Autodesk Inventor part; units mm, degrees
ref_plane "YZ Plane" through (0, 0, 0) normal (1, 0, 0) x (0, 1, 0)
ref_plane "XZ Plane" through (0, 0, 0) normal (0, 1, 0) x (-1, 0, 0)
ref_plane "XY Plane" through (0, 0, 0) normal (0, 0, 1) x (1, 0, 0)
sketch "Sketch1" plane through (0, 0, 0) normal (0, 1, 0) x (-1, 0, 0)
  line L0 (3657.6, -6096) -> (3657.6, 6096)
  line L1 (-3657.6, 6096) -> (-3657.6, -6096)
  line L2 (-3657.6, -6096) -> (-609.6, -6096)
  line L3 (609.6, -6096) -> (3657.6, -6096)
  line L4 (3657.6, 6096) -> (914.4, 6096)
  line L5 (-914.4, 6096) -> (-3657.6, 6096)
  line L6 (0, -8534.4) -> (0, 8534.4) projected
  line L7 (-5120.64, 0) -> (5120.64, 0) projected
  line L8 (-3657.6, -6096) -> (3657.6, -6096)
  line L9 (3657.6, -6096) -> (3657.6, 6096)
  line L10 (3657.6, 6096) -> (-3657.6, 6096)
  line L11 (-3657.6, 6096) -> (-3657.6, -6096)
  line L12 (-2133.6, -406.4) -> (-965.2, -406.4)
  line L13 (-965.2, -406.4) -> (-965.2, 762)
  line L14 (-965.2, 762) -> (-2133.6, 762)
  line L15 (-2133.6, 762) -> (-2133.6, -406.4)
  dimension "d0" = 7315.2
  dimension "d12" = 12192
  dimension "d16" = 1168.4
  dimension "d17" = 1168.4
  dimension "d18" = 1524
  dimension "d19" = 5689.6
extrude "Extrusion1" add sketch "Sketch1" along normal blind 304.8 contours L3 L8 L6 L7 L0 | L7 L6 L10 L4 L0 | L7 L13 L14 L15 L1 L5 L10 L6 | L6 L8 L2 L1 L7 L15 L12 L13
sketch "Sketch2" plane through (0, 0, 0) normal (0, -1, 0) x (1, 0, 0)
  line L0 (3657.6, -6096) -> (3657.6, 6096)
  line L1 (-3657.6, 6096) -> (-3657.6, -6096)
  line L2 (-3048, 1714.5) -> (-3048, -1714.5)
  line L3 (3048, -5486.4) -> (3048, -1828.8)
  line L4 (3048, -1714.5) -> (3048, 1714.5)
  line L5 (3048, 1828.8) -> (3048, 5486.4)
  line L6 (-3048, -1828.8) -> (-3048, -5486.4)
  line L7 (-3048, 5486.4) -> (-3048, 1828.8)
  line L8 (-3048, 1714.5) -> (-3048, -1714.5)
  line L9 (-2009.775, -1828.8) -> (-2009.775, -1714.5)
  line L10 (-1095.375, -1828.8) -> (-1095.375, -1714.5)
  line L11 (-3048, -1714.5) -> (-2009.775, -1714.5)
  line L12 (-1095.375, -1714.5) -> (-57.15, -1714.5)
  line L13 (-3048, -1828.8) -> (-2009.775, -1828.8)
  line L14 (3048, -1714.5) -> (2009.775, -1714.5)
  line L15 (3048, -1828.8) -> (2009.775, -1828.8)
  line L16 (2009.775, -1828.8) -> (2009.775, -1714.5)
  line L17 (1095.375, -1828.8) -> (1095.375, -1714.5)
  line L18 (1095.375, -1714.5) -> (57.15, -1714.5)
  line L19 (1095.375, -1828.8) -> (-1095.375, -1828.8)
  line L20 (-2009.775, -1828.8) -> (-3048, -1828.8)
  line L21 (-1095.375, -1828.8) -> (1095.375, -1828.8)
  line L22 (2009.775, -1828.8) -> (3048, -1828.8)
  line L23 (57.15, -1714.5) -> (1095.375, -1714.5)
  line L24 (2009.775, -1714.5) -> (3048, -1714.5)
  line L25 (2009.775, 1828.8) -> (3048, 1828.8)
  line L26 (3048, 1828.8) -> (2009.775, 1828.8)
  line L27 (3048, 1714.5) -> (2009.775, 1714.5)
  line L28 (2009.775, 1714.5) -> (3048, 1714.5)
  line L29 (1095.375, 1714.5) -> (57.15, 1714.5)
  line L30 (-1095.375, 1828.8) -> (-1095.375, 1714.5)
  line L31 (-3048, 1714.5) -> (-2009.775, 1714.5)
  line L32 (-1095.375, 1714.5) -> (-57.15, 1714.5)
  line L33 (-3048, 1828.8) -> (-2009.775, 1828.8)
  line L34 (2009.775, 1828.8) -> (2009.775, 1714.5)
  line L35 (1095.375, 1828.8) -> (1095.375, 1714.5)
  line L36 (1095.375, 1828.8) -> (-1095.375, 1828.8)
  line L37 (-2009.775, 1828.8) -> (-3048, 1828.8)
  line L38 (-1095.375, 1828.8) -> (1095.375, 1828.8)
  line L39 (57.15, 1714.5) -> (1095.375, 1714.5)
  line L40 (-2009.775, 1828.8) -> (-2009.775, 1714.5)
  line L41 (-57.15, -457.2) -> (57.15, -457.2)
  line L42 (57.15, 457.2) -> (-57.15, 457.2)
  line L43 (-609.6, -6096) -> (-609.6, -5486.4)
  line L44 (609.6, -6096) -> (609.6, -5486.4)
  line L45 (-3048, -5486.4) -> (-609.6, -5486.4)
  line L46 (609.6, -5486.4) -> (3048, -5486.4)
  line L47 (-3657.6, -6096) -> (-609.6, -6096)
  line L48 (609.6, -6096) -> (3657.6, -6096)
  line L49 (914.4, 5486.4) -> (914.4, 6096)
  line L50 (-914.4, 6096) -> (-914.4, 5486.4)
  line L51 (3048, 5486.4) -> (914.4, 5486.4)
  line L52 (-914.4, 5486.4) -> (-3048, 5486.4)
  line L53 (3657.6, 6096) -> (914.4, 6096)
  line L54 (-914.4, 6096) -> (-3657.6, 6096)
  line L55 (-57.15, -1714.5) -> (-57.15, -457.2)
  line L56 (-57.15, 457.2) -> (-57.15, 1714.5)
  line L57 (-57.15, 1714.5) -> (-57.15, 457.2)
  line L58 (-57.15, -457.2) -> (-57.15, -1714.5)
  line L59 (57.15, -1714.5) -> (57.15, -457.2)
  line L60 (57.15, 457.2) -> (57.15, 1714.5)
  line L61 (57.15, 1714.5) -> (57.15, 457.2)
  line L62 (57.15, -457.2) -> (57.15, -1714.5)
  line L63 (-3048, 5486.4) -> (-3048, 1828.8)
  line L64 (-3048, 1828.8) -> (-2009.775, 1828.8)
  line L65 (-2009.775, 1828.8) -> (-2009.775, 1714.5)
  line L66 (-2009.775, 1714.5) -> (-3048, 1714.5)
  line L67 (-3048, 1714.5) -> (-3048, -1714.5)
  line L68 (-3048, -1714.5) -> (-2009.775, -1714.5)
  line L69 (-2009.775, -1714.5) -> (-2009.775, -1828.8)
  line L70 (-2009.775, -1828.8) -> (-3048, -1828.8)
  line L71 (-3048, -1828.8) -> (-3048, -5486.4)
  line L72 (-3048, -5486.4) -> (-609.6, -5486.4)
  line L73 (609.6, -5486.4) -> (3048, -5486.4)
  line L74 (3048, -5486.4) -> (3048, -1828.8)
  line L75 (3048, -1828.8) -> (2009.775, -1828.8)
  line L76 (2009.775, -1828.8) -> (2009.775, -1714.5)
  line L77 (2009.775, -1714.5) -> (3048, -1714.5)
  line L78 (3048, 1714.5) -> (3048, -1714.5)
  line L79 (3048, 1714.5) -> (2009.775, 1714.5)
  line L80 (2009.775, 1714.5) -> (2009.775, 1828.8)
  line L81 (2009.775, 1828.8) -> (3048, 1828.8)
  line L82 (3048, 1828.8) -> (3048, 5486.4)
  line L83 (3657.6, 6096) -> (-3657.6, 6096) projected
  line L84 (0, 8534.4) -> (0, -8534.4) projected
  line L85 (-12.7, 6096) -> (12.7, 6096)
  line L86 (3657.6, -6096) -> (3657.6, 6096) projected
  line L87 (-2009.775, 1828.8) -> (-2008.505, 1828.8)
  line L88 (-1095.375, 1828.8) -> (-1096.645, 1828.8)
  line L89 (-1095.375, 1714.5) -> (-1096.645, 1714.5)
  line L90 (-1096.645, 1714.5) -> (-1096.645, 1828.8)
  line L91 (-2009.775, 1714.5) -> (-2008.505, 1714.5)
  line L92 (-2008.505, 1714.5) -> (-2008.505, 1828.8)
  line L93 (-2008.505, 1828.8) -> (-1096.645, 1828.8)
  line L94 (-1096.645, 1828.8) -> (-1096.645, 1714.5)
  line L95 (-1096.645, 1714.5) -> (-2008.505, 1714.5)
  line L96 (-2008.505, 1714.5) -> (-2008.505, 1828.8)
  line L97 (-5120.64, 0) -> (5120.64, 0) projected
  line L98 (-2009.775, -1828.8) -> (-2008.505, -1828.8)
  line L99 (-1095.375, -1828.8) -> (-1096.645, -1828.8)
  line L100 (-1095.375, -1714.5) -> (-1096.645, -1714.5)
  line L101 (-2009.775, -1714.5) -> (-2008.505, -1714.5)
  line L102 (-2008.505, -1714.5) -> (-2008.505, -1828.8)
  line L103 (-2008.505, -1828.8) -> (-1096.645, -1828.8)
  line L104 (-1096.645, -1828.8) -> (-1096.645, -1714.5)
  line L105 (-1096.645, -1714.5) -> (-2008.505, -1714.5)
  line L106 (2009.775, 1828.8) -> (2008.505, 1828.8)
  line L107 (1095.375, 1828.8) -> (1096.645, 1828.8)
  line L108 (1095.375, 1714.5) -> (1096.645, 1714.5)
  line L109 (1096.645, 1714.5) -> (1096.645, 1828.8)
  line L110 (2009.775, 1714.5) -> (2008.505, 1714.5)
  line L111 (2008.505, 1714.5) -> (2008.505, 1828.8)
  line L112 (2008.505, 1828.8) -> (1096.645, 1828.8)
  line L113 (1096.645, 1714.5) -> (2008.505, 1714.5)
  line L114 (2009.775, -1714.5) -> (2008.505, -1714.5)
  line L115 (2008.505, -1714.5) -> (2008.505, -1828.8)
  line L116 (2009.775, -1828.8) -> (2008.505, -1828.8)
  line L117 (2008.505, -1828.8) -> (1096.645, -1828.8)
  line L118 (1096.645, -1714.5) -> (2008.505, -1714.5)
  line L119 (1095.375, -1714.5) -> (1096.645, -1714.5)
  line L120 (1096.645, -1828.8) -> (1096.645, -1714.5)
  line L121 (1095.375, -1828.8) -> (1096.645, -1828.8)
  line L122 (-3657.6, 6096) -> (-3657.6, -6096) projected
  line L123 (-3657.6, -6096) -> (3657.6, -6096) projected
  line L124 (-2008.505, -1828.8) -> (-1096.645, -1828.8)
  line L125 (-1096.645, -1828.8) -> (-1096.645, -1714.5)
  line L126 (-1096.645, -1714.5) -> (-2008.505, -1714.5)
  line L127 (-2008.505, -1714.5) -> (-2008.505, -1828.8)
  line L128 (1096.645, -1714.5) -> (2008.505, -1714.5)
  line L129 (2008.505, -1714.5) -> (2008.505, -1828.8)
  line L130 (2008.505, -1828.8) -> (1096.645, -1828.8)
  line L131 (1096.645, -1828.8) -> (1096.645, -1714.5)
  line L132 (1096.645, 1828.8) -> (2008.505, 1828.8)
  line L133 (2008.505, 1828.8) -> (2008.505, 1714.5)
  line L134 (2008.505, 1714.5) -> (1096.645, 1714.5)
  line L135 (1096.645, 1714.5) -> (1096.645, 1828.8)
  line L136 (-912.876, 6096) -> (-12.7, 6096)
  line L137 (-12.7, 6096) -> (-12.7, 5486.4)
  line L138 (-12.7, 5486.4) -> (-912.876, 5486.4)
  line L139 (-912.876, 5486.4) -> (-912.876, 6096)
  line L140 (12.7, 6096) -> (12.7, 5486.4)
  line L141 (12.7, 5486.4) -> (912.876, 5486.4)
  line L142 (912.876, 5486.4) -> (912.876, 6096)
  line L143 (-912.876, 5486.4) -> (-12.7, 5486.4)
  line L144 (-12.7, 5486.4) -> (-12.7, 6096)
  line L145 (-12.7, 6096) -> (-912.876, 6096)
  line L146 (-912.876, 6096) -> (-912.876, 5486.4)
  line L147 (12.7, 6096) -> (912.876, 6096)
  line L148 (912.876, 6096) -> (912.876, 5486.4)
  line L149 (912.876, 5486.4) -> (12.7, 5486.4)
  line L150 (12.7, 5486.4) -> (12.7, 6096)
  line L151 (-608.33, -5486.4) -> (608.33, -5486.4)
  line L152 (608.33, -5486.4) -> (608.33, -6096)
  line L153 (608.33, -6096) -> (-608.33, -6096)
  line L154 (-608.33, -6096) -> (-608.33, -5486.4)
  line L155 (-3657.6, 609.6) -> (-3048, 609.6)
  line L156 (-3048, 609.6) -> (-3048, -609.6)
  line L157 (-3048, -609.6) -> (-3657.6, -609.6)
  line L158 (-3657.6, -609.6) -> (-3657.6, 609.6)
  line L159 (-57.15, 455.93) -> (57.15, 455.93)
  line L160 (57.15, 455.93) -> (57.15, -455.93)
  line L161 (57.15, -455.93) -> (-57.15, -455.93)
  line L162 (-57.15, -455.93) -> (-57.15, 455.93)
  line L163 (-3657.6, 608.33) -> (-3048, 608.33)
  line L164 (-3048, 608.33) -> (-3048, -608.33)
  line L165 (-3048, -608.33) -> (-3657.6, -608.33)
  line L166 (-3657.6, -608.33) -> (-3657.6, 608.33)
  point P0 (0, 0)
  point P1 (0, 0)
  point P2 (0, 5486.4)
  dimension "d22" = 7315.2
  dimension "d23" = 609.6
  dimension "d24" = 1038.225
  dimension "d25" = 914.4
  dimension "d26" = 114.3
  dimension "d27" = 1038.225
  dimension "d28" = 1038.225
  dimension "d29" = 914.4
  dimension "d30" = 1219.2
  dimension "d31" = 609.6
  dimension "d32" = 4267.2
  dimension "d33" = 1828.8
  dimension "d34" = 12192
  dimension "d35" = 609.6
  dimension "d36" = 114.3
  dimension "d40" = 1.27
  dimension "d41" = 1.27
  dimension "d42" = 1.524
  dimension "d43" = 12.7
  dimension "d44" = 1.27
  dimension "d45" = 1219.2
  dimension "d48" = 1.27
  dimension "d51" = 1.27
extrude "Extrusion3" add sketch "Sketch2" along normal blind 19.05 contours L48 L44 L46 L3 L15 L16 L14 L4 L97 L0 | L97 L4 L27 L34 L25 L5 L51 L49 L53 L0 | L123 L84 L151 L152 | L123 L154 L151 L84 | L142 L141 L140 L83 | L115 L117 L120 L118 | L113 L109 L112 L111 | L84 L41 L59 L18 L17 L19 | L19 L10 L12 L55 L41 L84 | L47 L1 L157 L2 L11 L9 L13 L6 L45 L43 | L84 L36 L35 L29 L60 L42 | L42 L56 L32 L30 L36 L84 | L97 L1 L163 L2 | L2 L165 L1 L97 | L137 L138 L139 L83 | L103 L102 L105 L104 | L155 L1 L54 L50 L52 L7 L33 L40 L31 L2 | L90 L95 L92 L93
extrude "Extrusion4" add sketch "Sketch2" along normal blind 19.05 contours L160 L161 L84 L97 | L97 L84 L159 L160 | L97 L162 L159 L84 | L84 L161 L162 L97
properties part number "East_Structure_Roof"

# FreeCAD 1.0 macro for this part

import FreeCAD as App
import Part
import Sketcher

V = App.Vector
Q = App.Units.Quantity


def add_polygon(sketch, points):
    """Adds a closed chain of lines whose ends are joined by coincident constraints."""
    first, n = sketch.GeometryCount, len(points)
    for a, b in zip(points, points[1:] + points[:1]):
        sketch.addGeometry(Part.LineSegment(App.Vector(*a, 0), App.Vector(*b, 0)), False)
    for i in range(n):
        sketch.addConstraint(Sketcher.Constraint("Coincident", first + i, 2, first + (i + 1) % n, 1))

doc = App.newDocument("Part")
body = doc.addObject("PartDesign::Body", "Body")

# Sketch on XZ plane
sketch1 = body.newObject("Sketcher::SketchObject", "Sketch")
sketch1.AttachmentSupport = (doc.getObject("XZ_Plane"), [""])
sketch1.MapMode = "FlatFace"
add_polygon(sketch1, [(-3658, -6096), (-3658, 6096), (3658, 6096), (3658, -6096)])  # lines 0-3
add_polygon(sketch1, [(2134, -406), (2134, 762), (965, 762), (965, -406)])  # lines 4-7
sketch1.addConstraint([
    Sketcher.Constraint("Vertical", 0),
    Sketcher.Constraint("Horizontal", 1),
    Sketcher.Constraint("Vertical", 2),
    Sketcher.Constraint("Horizontal", 3),
    Sketcher.Constraint("Vertical", 4),
    Sketcher.Constraint("Horizontal", 5),
    Sketcher.Constraint("Vertical", 6),
    Sketcher.Constraint("Horizontal", 7),
    Sketcher.Constraint("Symmetric", 0, 2, 2, 2, -1, 1),
    Sketcher.Constraint("Equal", 7, 4),
    Sketcher.Constraint("DistanceX", 1, 1, 1, 2, Q("288 in")),
    Sketcher.Constraint("DistanceX", 5, 2, 5, 1, Q("46 in")),
    Sketcher.Constraint("DistanceY", 0, 1, 0, 2, Q("480 in")),
    Sketcher.Constraint("DistanceX", 4, 2, 1, 2, Q("60 in")),
    Sketcher.Constraint("DistanceY", 2, 2, 6, 2, Q("224 in")),
])
pad1 = body.newObject("PartDesign::Pad", "Pad")
pad1.Profile = sketch1
pad1.Length = Q("12 in")
pad1.Reversed = True

# Sketch on XZ plane
sketch2 = body.newObject("Sketcher::SketchObject", "Sketch001")
sketch2.AttachmentSupport = (doc.getObject("XZ_Plane"), [""])
sketch2.MapMode = "FlatFace"
add_polygon(sketch2, [(610, -6096), (3658, -6096), (3658, 6096), (914, 6096), (914, 5486), (3048, 5486), (3048, 1829), (2010, 1829), (2010, 1714), (3048, 1714), (3048, -1714), (2010, -1714), (2010, -1829), (3048, -1829), (3048, -5486), (610, -5486)])  # lines 0-15
add_polygon(sketch2, [(608, -6096), (608, -5486), (-608, -5486), (-608, -6096)])  # lines 16-19
add_polygon(sketch2, [(913, 5486), (913, 6096), (13, 6096), (13, 5486)])  # lines 20-23
add_polygon(sketch2, [(2009, -1829), (2009, -1714), (1097, -1714), (1097, -1829)])  # lines 24-27
add_polygon(sketch2, [(1097, 1714), (2009, 1714), (2009, 1829), (1097, 1829)])  # lines 28-31
add_polygon(sketch2, [(57, -457), (-57, -457), (-57, -1714), (-1095, -1714), (-1095, -1829), (1095, -1829), (1095, -1714), (57, -1714)])  # lines 32-39
add_polygon(sketch2, [(-3658, -6096), (-610, -6096), (-610, -5486), (-3048, -5486), (-3048, -1829), (-2010, -1829), (-2010, -1714), (-3048, -1714), (-3048, -610), (-3658, -610)])  # lines 40-49
add_polygon(sketch2, [(1095, 1829), (-1095, 1829), (-1095, 1714), (-57, 1714), (-57, 457), (57, 457), (57, 1714), (1095, 1714)])  # lines 50-57
add_polygon(sketch2, [(-3658, 608), (-3658, -608), (-3048, -608), (-3048, 608)])  # lines 58-61
add_polygon(sketch2, [(-13, 5486), (-13, 6096), (-913, 6096), (-913, 5486)])  # lines 62-65
add_polygon(sketch2, [(-2009, -1829), (-1097, -1829), (-1097, -1714), (-2009, -1714)])  # lines 66-69
add_polygon(sketch2, [(-3658, 610), (-3048, 610), (-3048, 1714), (-2010, 1714), (-2010, 1829), (-3048, 1829), (-3048, 5486), (-914, 5486), (-914, 6096), (-3658, 6096)])  # lines 70-79
add_polygon(sketch2, [(-1097, 1714), (-1097, 1829), (-2009, 1829), (-2009, 1714)])  # lines 80-83
sketch2.addConstraint([
    Sketcher.Constraint("Horizontal", 0),
    Sketcher.Constraint("Vertical", 1),
    Sketcher.Constraint("Horizontal", 2),
    Sketcher.Constraint("Vertical", 3),
    Sketcher.Constraint("Horizontal", 4),
    Sketcher.Constraint("Vertical", 5),
    Sketcher.Constraint("Horizontal", 6),
    Sketcher.Constraint("Vertical", 7),
    Sketcher.Constraint("Horizontal", 8),
    Sketcher.Constraint("Vertical", 9),
    Sketcher.Constraint("Horizontal", 10),
    Sketcher.Constraint("Vertical", 11),
    Sketcher.Constraint("Horizontal", 12),
    Sketcher.Constraint("Vertical", 13),
    Sketcher.Constraint("Horizontal", 14),
    Sketcher.Constraint("Vertical", 15),
    Sketcher.Constraint("Vertical", 16),
    Sketcher.Constraint("Horizontal", 17),
    Sketcher.Constraint("Vertical", 18),
    Sketcher.Constraint("Horizontal", 19),
    Sketcher.Constraint("Vertical", 20),
    Sketcher.Constraint("Horizontal", 21),
    Sketcher.Constraint("Vertical", 22),
    Sketcher.Constraint("Horizontal", 23),
    Sketcher.Constraint("Vertical", 24),
    Sketcher.Constraint("Horizontal", 25),
    Sketcher.Constraint("Vertical", 26),
    Sketcher.Constraint("Horizontal", 27),
    Sketcher.Constraint("Horizontal", 28),
    Sketcher.Constraint("Vertical", 29),
    Sketcher.Constraint("Horizontal", 30),
    Sketcher.Constraint("Vertical", 31),
    Sketcher.Constraint("Horizontal", 32),
    Sketcher.Constraint("Vertical", 33),
    Sketcher.Constraint("Horizontal", 34),
    Sketcher.Constraint("Vertical", 35),
    Sketcher.Constraint("Horizontal", 36),
    Sketcher.Constraint("Vertical", 37),
    Sketcher.Constraint("Horizontal", 38),
    Sketcher.Constraint("Vertical", 39),
    Sketcher.Constraint("Horizontal", 40),
    Sketcher.Constraint("Vertical", 41),
    Sketcher.Constraint("Horizontal", 42),
    Sketcher.Constraint("Vertical", 43),
    Sketcher.Constraint("Horizontal", 44),
    Sketcher.Constraint("Vertical", 45),
    Sketcher.Constraint("Horizontal", 46),
    Sketcher.Constraint("Vertical", 47),
    Sketcher.Constraint("Horizontal", 48),
    Sketcher.Constraint("Vertical", 49),
    Sketcher.Constraint("Horizontal", 50),
    Sketcher.Constraint("Vertical", 51),
    Sketcher.Constraint("Horizontal", 52),
    Sketcher.Constraint("Vertical", 53),
    Sketcher.Constraint("Horizontal", 54),
    Sketcher.Constraint("Vertical", 55),
    Sketcher.Constraint("Horizontal", 56),
    Sketcher.Constraint("Vertical", 57),
    Sketcher.Constraint("Vertical", 58),
    Sketcher.Constraint("Horizontal", 59),
    Sketcher.Constraint("Vertical", 60),
    Sketcher.Constraint("Horizontal", 61),
    Sketcher.Constraint("Vertical", 62),
    Sketcher.Constraint("Horizontal", 63),
    Sketcher.Constraint("Vertical", 64),
    Sketcher.Constraint("Horizontal", 65),
    Sketcher.Constraint("Horizontal", 66),
    Sketcher.Constraint("Vertical", 67),
    Sketcher.Constraint("Horizontal", 68),
    Sketcher.Constraint("Vertical", 69),
    Sketcher.Constraint("Horizontal", 70),
    Sketcher.Constraint("Vertical", 71),
    Sketcher.Constraint("Horizontal", 72),
    Sketcher.Constraint("Vertical", 73),
    Sketcher.Constraint("Horizontal", 74),
    Sketcher.Constraint("Vertical", 75),
    Sketcher.Constraint("Horizontal", 76),
    Sketcher.Constraint("Vertical", 77),
    Sketcher.Constraint("Horizontal", 78),
    Sketcher.Constraint("Vertical", 79),
    Sketcher.Constraint("Vertical", 80),
    Sketcher.Constraint("Horizontal", 81),
    Sketcher.Constraint("Vertical", 82),
    Sketcher.Constraint("Horizontal", 83),
    Sketcher.Constraint("Symmetric", 4, 2, 42, 2, -1, 1),
    Sketcher.Constraint("Symmetric", 6, 2, 44, 2, -1, 1),
    Sketcher.Constraint("Symmetric", 8, 2, 46, 2, -1, 1),
    Sketcher.Constraint("Symmetric", 1, 2, 49, 2, -1, 1),
    Sketcher.Constraint("Symmetric", 36, 2, 50, 2, -1, 1),
    Sketcher.Constraint("Symmetric", 38, 2, 52, 2, -1, 1),
    Sketcher.Constraint("Symmetric", 32, 2, 54, 2, -1, 1),
    Sketcher.Constraint("Symmetric", 34, 2, 56, 2, -1, 1),
    Sketcher.Constraint("Symmetric", 30, 2, 66, 2, -1, 1),
    Sketcher.Constraint("Symmetric", 28, 2, 68, 2, -1, 1),
    Sketcher.Constraint("Symmetric", 9, 2, 71, 2, -1, 1),
    Sketcher.Constraint("Symmetric", 11, 2, 73, 2, -1, 1),
    Sketcher.Constraint("Symmetric", 13, 2, 75, 2, -1, 1),
    Sketcher.Constraint("Symmetric", 0, 2, 78, 2, -1, 1),
    Sketcher.Constraint("Symmetric", 26, 2, 80, 2, -1, 1),
    Sketcher.Constraint("Symmetric", 24, 2, 82, 2, -1, 1),
    Sketcher.Constraint("Symmetric", 34, 2, 37, 2, -2),
    Sketcher.Constraint("Symmetric", 15, 2, 40, 2, -2),
    Sketcher.Constraint("Symmetric", 13, 2, 42, 2, -2),
    Sketcher.Constraint("Symmetric", 11, 2, 44, 2, -2),
    Sketcher.Constraint("Symmetric", 21, 2, 62, 2, -2),
    Sketcher.Constraint("Symmetric", 23, 2, 64, 2, -2),
    Sketcher.Constraint("Symmetric", 26, 2, 66, 2, -2),
    Sketcher.Constraint("Symmetric", 24, 2, 68, 2, -2),
    Sketcher.Constraint("Horizontal", 14, 2, 16, 2),
    Sketcher.Constraint("Horizontal", 15, 2, 18, 2),
    Sketcher.Constraint("Horizontal", 2, 2, 20, 2),
    Sketcher.Constraint("Horizontal", 4, 2, 22, 2),
    Sketcher.Constraint("Horizontal", 10, 2, 24, 2),
    Sketcher.Constraint("Horizontal", 12, 2, 26, 2),
    Sketcher.Constraint("Horizontal", 8, 2, 28, 2),
    Sketcher.Constraint("Horizontal", 25, 2, 33, 2),
    Sketcher.Constraint("Horizontal", 27, 2, 35, 2),
    Sketcher.Constraint("Vertical", 5, 2, 8, 2),
    Sketcher.Constraint("Vertical", 33, 2, 52, 2),
    Sketcher.Constraint("Vertical", 49, 2, 58, 2),
    Sketcher.Constraint("Vertical", 47, 2, 59, 2),
    Sketcher.Constraint("Equal", 12, 34),
    Sketcher.Constraint("Equal", 4, 76),
    Sketcher.Constraint("Equal", 70, 3),
    Sketcher.Constraint("Equal", 54, 7),
    Sketcher.Constraint("Equal", 19, 58),
    Sketcher.Constraint("Equal", 47, 71),
    Sketcher.Constraint("DistanceX", 48, 2, 48, 1, Q("24 in")),
    Sketcher.Constraint("DistanceY", 1, 1, 1, 2, Q("480 in")),
    Sketcher.Constraint("DistanceX", 32, 2, 32, 1, Q("4.5 in")),
    Sketcher.Constraint("DistanceX", -1, 1, 2, 2, Q("36 in")),
    Sketcher.Constraint("DistanceY", -1, 1, 5, 2, Q("72 in")),
    Sketcher.Constraint("DistanceX", -1, 1, 14, 2, Q("24 in")),
    Sketcher.Constraint("DistanceY", 47, 2, -1, 1, Q("24 in")),
    Sketcher.Constraint("DistanceX", -1, 1, 21, 2, Q("0.5 in")),
    Sketcher.Constraint("DistanceX", 0, 1, 0, 2, Q("120 in")),
    Sketcher.Constraint("DistanceX", 6, 2, 6, 1, Q("40.875 in")),
    Sketcher.Constraint("DistanceX", 17, 2, 17, 1, Q("47.9 in")),
    Sketcher.Constraint("DistanceX", 25, 2, 25, 1, Q("35.9 in")),
    Sketcher.Constraint("DistanceY", 33, 2, 33, 1, Q("49.5 in")),
    Sketcher.Constraint("DistanceX", 21, 2, 21, 1, Q("35.44 in")),
    Sketcher.Constraint("DistanceX", -1, 1, 16, 2, Q("23.95 in")),
    Sketcher.Constraint("DistanceY", 58, 2, -1, 1, Q("23.95 in")),
    Sketcher.Constraint("DistanceX", -1, 1, 24, 2, Q("79.075 in")),
])
pad2 = body.newObject("PartDesign::Pad", "Pad001")
pad2.Profile = sketch2
pad2.Length = Q("0.75 in")

# Sketch on XZ plane
sketch3 = body.newObject("Sketcher::SketchObject", "Sketch002")
sketch3.AttachmentSupport = (doc.getObject("XZ_Plane"), [""])
sketch3.MapMode = "FlatFace"
add_polygon(sketch3, [(57, -456), (57, 456), (-57, 456), (-57, -456)])  # lines 0-3
sketch3.addConstraint([
    Sketcher.Constraint("Vertical", 0),
    Sketcher.Constraint("Horizontal", 1),
    Sketcher.Constraint("Vertical", 2),
    Sketcher.Constraint("Horizontal", 3),
    Sketcher.Constraint("Symmetric", 0, 2, 2, 2, -1, 1),
    Sketcher.Constraint("DistanceX", 1, 2, 1, 1, Q("4.5 in")),
    Sketcher.Constraint("DistanceY", 0, 1, 0, 2, Q("35.9 in")),
])
pad3 = body.newObject("PartDesign::Pad", "Pad002")
pad3.Profile = sketch3
pad3.Length = Q("0.75 in")

doc.recompute()
